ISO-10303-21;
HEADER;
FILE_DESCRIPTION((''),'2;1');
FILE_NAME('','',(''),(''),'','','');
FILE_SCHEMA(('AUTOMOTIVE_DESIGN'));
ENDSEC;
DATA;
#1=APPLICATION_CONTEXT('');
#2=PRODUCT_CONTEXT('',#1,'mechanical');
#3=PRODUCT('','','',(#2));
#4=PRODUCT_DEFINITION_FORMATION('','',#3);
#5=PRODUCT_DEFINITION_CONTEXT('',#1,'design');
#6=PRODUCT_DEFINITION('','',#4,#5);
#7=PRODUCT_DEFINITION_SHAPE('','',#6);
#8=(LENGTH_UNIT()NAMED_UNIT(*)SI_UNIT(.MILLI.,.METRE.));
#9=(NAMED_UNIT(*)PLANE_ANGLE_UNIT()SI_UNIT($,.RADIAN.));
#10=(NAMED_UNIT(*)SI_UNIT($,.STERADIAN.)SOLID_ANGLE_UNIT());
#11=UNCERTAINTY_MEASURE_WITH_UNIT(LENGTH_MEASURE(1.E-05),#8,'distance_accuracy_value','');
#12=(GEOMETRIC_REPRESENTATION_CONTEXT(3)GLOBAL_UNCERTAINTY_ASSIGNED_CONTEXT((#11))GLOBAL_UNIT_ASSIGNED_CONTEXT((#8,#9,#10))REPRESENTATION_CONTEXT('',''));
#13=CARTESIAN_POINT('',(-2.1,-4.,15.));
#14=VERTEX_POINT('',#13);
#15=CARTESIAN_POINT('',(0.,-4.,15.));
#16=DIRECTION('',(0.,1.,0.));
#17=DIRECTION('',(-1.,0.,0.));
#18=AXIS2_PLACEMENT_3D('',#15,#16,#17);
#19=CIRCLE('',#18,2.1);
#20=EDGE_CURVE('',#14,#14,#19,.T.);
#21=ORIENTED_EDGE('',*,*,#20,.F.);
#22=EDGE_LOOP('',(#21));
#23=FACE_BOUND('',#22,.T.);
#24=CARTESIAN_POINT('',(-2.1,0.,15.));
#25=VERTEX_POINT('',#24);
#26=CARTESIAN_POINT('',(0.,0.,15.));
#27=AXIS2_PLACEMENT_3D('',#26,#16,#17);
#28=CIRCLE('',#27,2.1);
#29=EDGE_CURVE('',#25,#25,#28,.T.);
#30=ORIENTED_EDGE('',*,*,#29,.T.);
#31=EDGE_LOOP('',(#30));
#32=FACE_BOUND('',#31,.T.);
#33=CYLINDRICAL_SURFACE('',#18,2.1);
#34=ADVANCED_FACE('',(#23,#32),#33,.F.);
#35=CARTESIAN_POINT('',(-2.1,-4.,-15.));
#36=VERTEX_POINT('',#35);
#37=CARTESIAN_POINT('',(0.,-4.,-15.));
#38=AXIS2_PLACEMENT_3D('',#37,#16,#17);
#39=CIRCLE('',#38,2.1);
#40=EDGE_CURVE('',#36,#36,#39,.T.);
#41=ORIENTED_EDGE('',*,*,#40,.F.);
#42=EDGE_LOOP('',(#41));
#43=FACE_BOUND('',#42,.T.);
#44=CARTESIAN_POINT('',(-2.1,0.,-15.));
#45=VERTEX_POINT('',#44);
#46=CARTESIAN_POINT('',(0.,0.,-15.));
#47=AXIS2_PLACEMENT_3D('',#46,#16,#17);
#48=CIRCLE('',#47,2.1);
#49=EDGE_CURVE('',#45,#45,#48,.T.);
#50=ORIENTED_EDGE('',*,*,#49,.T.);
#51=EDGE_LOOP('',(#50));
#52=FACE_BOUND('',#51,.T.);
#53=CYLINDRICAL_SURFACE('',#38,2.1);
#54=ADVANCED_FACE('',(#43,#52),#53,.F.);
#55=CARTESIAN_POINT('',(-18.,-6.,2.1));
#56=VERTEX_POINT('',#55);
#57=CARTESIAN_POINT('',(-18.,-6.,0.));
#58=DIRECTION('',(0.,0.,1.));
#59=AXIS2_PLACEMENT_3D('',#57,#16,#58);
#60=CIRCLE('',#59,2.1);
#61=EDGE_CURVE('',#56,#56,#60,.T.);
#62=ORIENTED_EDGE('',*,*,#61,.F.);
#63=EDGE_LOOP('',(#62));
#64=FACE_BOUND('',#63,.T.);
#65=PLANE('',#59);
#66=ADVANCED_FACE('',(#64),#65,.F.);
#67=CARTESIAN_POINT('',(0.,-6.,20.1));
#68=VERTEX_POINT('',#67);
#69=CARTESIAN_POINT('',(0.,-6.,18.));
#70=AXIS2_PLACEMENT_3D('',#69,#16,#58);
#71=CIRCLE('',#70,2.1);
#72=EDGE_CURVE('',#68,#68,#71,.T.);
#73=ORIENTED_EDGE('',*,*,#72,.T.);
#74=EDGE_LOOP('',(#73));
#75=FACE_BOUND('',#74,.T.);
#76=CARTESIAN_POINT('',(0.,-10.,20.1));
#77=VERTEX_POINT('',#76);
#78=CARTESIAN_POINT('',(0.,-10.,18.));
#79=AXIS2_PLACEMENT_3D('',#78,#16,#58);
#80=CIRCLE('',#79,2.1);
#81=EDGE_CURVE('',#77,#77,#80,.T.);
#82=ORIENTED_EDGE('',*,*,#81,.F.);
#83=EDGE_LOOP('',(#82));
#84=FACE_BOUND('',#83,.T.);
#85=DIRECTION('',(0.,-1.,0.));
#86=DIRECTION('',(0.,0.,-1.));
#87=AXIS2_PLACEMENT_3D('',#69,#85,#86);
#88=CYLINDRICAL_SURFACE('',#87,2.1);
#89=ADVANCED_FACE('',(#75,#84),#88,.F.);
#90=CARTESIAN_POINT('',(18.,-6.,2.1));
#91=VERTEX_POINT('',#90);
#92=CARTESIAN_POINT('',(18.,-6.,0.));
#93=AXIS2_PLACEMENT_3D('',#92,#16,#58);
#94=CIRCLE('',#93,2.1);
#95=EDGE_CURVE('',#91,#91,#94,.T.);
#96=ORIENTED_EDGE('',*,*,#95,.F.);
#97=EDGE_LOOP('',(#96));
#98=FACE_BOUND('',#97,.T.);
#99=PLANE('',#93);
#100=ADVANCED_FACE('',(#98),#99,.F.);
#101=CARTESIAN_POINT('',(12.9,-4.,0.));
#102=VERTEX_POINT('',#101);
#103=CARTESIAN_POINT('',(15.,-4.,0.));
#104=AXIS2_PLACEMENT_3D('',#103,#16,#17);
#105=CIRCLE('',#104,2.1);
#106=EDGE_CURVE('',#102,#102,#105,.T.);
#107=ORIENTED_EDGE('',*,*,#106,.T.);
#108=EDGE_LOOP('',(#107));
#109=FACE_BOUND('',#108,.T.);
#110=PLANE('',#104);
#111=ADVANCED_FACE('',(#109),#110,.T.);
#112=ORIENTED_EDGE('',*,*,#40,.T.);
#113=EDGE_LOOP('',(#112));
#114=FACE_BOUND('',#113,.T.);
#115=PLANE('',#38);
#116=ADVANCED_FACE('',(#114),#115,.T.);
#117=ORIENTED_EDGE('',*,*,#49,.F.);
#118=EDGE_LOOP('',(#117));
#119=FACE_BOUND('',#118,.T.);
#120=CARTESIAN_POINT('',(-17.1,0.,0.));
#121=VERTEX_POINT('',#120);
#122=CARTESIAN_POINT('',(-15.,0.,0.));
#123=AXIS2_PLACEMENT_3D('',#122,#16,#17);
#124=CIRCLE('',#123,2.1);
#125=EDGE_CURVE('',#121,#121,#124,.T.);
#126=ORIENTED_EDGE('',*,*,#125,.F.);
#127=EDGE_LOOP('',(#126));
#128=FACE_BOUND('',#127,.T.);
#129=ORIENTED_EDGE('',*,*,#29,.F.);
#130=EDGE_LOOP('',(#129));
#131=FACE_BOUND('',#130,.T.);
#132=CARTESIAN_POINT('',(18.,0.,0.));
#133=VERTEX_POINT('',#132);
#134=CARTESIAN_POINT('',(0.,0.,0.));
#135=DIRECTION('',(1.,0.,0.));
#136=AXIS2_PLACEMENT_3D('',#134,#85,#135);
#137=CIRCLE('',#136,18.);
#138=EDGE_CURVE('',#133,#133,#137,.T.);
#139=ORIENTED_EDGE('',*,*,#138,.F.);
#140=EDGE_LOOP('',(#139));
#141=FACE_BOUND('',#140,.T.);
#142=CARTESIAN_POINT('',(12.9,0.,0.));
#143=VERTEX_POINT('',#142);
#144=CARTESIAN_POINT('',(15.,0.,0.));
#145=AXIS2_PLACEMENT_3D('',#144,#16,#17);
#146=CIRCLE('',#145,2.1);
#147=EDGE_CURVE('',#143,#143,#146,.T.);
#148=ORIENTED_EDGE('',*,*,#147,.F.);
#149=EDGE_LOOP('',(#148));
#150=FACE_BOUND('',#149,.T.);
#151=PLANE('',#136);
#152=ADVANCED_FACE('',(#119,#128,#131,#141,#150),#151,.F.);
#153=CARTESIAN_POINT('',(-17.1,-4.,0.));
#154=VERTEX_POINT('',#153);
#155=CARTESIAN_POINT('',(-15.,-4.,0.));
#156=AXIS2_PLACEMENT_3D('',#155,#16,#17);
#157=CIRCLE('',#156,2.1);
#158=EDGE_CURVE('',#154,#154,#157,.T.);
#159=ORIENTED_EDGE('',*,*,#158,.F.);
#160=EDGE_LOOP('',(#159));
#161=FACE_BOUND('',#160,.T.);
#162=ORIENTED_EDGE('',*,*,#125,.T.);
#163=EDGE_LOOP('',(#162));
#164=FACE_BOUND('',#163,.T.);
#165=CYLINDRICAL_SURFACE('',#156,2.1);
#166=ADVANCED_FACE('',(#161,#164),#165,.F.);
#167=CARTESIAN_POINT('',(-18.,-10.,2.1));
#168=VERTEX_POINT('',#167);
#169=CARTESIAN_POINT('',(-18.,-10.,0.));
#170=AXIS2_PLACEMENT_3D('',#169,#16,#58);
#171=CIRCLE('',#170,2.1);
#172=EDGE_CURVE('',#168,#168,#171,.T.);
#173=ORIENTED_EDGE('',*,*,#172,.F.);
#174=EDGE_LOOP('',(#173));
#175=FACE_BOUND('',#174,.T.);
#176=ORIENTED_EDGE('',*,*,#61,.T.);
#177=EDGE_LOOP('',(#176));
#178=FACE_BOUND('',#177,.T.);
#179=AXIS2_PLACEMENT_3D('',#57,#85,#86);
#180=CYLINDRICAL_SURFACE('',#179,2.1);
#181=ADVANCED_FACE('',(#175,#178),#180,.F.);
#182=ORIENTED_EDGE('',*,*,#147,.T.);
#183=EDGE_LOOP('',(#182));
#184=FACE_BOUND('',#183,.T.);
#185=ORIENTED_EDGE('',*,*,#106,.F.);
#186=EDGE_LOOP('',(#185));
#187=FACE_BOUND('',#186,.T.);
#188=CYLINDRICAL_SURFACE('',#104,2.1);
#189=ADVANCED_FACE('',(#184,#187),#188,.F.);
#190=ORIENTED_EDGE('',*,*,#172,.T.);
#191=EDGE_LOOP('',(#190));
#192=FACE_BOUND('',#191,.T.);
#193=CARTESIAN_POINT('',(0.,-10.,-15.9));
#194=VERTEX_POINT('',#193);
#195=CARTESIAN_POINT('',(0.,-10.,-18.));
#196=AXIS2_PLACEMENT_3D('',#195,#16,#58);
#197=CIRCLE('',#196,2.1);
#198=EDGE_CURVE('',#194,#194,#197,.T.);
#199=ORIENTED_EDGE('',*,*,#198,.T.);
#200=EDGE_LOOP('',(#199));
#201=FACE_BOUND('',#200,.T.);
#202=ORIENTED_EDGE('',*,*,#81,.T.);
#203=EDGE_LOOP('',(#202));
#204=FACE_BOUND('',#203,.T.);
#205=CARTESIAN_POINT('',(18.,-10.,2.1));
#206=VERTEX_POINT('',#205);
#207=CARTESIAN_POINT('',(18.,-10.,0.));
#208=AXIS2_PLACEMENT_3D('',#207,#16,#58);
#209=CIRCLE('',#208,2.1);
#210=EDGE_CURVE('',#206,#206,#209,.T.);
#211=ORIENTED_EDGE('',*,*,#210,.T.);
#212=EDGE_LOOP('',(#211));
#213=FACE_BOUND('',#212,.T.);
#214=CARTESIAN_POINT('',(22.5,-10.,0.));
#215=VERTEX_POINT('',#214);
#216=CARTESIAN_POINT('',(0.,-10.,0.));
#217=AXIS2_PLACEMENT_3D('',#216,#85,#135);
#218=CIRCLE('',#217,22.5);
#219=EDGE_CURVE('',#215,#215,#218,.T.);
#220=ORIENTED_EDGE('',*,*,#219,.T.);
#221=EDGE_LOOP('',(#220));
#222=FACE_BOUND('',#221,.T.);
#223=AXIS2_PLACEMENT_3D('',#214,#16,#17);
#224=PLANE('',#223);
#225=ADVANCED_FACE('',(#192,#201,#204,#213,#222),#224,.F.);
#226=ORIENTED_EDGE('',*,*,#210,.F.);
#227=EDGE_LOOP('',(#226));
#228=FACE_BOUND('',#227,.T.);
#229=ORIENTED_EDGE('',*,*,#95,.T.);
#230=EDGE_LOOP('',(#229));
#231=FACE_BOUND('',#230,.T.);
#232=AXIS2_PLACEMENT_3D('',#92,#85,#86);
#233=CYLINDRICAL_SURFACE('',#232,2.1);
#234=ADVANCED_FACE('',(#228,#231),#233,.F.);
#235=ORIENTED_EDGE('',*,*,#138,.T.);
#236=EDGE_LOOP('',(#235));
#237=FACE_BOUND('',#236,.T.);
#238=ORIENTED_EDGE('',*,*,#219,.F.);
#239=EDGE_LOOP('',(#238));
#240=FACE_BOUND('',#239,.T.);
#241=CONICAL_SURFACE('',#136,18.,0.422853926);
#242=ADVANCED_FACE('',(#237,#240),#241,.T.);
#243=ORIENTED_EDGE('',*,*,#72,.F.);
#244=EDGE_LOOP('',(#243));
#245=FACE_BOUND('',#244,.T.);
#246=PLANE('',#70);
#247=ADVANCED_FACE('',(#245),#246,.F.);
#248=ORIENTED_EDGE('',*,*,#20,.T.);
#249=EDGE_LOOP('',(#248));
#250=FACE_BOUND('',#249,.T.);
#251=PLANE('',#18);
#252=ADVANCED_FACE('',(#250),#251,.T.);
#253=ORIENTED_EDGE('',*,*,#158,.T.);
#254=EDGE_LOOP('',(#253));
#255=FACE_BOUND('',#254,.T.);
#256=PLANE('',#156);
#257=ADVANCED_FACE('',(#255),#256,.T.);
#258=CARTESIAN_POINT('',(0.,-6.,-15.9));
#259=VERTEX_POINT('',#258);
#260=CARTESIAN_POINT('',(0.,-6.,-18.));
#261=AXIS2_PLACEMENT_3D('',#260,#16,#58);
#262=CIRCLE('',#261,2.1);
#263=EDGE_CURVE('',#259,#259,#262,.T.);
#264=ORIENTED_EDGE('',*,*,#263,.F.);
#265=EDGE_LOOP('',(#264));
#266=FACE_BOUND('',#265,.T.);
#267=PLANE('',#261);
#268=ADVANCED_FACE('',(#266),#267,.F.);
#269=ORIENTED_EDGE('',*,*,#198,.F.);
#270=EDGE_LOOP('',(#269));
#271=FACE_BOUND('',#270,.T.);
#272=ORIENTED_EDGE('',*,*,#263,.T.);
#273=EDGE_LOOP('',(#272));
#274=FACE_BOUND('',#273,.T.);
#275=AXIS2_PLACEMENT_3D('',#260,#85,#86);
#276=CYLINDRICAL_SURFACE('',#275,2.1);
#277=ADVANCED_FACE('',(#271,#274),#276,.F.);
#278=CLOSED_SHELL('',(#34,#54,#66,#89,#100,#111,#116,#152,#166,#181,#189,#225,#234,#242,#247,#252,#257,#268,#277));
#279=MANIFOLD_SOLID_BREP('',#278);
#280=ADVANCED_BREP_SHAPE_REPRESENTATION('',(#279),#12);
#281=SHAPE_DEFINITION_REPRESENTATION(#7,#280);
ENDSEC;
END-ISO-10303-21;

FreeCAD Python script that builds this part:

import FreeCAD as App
import Part
import Sketcher
from FreeCAD import Vector
Q = App.Units.Quantity


def add_polygon(sketch, points):
    """Adds a closed chain of lines whose ends are joined by coincident constraints."""
    first, n = sketch.GeometryCount, len(points)
    for a, b in zip(points, points[1:] + points[:1]):
        sketch.addGeometry(Part.LineSegment(App.Vector(*a, 0), App.Vector(*b, 0)), False)
    for i in range(n):
        sketch.addConstraint(Sketcher.Constraint("Coincident", first + i, 2, first + (i + 1) % n, 1))

doc = App.newDocument("Part")
body = doc.addObject("PartDesign::Body", "Body")

# Sketch on XY plane
sketch1 = body.newObject("Sketcher::SketchObject", "Sketch")
sketch1.AttachmentSupport = (doc.getObject("XY_Plane"), [""])
sketch1.MapMode = "FlatFace"
add_polygon(sketch1, [(0, 0), (18, 0), (22, -10), (0, -10)])  # lines 0-3
sketch1.addConstraint([
    Sketcher.Constraint("Horizontal", 0),
    Sketcher.Constraint("Horizontal", 2),
    Sketcher.Constraint("Vertical", 3),
    Sketcher.Constraint("Coincident", 3, 2, -1, 1),
    Sketcher.Constraint("DistanceX", 0, 1, 0, 2, Q("18 mm")),
    Sketcher.Constraint("DistanceY", 3, 1, 3, 2, Q("10 mm")),
    Sketcher.Constraint("DistanceX", 2, 2, 2, 1, Q("22.5 mm")),
])
revolution = body.newObject("PartDesign::Revolution", "Revolution")
revolution.Profile = sketch1
revolution.ReferenceAxis = (sketch1, ["V_Axis"])
revolution.Angle = 360

# Sketch on XZ plane
sketch2 = body.newObject("Sketcher::SketchObject", "Sketch001")
sketch2.AttachmentSupport = (doc.getObject("XZ_Plane"), [""])
sketch2.MapMode = "FlatFace"
sketch2.AttachmentOffset = App.Placement(Vector(0, 0, 10), App.Rotation())
sketch2.addGeometry([
    Part.Circle(Vector(18, 0, 0), Vector(0, 0, 1), 2.1),
    Part.Circle(Vector(0, 18, 0), Vector(0, 0, 1), 2.1),
    Part.Circle(Vector(0, -18, 0), Vector(0, 0, 1), 2.1),
    Part.Circle(Vector(-18, 0, 0), Vector(0, 0, 1), 2.1),
], False)
sketch2.addConstraint([
    Sketcher.Constraint("Equal", 0, 1),
    Sketcher.Constraint("Equal", 1, 2),
    Sketcher.Constraint("Equal", 2, 3),
    Sketcher.Constraint("Symmetric", 1, 3, 2, 3, -1, 1),
    Sketcher.Constraint("Symmetric", 0, 3, 3, 3, -1, 1),
    Sketcher.Constraint("PointOnObject", 0, 3, -1),
    Sketcher.Constraint("PointOnObject", 1, 3, -2),
    Sketcher.Constraint("Diameter", 0, Q("4.2 mm")),
    Sketcher.Constraint("DistanceX", -1, 1, 0, 3, Q("18 mm")),
    Sketcher.Constraint("DistanceY", -1, 1, 1, 3, Q("18 mm")),
])
pocket1 = body.newObject("PartDesign::Pocket", "Pocket")
pocket1.Profile = sketch2
pocket1.Length = 4

# Sketch on XZ plane
sketch3 = body.newObject("Sketcher::SketchObject", "Sketch002")
sketch3.AttachmentSupport = (doc.getObject("XZ_Plane"), [""])
sketch3.MapMode = "FlatFace"
sketch3.addGeometry([
    Part.Circle(Vector(0, -15, 0), Vector(0, 0, 1), 2.1),
    Part.Circle(Vector(15, 0, 0), Vector(0, 0, 1), 2.1),
    Part.Circle(Vector(0, 15, 0), Vector(0, 0, 1), 2.1),
    Part.Circle(Vector(-15, 0, 0), Vector(0, 0, 1), 2.1),
], False)
sketch3.addConstraint([
    Sketcher.Constraint("Equal", 0, 1),
    Sketcher.Constraint("Equal", 1, 2),
    Sketcher.Constraint("Equal", 2, 3),
    Sketcher.Constraint("Symmetric", 0, 3, 2, 3, -1, 1),
    Sketcher.Constraint("Symmetric", 1, 3, 3, 3, -1, 1),
    Sketcher.Constraint("PointOnObject", 0, 3, -2),
    Sketcher.Constraint("PointOnObject", 1, 3, -1),
    Sketcher.Constraint("Diameter", 0, Q("4.2 mm")),
    Sketcher.Constraint("DistanceY", 0, 3, -1, 1, Q("15 mm")),
    Sketcher.Constraint("DistanceX", -1, 1, 1, 3, Q("15 mm")),
])
pocket2 = body.newObject("PartDesign::Pocket", "Pocket001")
pocket2.Profile = sketch3
pocket2.Length = 4
pocket2.Reversed = True

doc.recompute()
